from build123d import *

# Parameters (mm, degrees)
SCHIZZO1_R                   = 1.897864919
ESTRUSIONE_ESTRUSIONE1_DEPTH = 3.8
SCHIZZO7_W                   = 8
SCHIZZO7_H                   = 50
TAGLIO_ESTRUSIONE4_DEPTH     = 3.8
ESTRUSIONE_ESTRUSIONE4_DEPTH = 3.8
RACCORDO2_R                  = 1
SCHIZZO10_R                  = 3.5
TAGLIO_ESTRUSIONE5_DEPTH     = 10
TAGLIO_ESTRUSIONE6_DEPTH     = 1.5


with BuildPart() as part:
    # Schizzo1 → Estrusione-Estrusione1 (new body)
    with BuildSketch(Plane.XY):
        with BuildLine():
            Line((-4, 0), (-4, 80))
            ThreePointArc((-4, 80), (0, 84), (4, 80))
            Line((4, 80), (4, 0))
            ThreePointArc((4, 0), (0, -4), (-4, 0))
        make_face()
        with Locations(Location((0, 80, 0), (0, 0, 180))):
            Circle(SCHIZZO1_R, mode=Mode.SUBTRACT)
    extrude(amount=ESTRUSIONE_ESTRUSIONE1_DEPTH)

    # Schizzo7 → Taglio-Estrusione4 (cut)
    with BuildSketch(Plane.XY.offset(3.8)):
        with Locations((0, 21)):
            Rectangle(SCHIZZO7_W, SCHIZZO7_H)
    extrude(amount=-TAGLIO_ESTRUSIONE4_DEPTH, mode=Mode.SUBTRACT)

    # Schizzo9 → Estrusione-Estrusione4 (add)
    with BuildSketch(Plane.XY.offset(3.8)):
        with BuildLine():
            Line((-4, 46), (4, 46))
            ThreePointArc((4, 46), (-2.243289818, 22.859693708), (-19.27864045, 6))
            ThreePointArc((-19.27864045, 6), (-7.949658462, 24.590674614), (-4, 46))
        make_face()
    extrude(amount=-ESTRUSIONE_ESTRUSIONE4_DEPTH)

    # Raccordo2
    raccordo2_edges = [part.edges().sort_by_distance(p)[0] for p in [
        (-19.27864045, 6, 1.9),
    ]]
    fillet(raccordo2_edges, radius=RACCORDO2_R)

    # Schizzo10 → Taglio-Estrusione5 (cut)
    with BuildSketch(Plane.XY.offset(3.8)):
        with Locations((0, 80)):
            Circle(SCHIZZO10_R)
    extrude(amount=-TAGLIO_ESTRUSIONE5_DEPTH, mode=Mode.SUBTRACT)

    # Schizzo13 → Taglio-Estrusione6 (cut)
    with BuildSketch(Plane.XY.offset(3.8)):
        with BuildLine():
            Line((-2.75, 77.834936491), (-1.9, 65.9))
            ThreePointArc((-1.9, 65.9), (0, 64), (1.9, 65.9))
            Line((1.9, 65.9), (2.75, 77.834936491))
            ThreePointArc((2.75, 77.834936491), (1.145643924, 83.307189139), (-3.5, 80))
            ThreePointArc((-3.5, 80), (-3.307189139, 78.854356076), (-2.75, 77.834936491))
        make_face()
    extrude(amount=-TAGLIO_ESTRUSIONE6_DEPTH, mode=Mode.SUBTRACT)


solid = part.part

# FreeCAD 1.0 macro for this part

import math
import FreeCAD as App
import Part
import Sketcher


def edges_at(feature, points):
    """Names of the edges that pass closest to the given points."""
    edges = feature.Shape.Edges
    near = lambda p: min(range(len(edges)), key=lambda i: edges[i].distToShape(Part.Vertex(*p))[0])
    return sorted({f"Edge{near(p) + 1}" for p in points})


def add_polygon(sketch, points):
    """Adds a closed chain of lines whose ends are joined by coincident constraints."""
    first, n = sketch.GeometryCount, len(points)
    for a, b in zip(points, points[1:] + points[:1]):
        sketch.addGeometry(Part.LineSegment(App.Vector(*a, 0), App.Vector(*b, 0)), False)
    for i in range(n):
        sketch.addConstraint(Sketcher.Constraint("Coincident", first + i, 2, first + (i + 1) % n, 1))

doc = App.newDocument("Part")
params = doc.addObject("Spreadsheet::Sheet", "Params")
for row, (alias, value) in enumerate([
    ("sketch1_radius", "4 mm"),
    ("sketch1_height", "80 mm"),
    ("pad1_length", "3.8 mm"),
    ("sketch2_width", "8 mm"),
    ("sketch2_height", "50 mm"),
    ("pocket1_length", "3.8 mm"),
    ("sketch3_radius", "60 mm"),
    ("sketch3_width", "8 mm"),
    ("pad2_length", "3.8 mm"),
    ("fillet_radius", "1 mm"),
    ("sketch4_diameter", "7 mm"),
    ("pocket2_length", "10 mm"),
    ("sketch5_radius", "1.9 mm"),
    ("sketch5_radius2", "3.5 mm"),
    ("pocket3_length", "1.5 mm"),
], start=1):
    params.set(f"A{row}", alias)
    params.set(f"B{row}", "=" + value)
    params.setAlias(f"B{row}", alias)

body = doc.addObject("PartDesign::Body", "Body")

# Sketch on XY plane
sketch1 = body.newObject("Sketcher::SketchObject", "Sketch")
sketch1.AttachmentSupport = (doc.getObject("XY_Plane"), [""])
sketch1.MapMode = "FlatFace"
sketch1.addGeometry(Part.LineSegment(App.Vector(-4, 80, 0), App.Vector(-4, 0, 0)), False)
sketch1.addGeometry(Part.ArcOfCircle(Part.Circle(App.Vector(0, 0, 0), App.Vector(0, 0, 1), 4), math.radians(180), math.radians(360)), False)
sketch1.addGeometry(Part.LineSegment(App.Vector(4, 0, 0), App.Vector(4, 80, 0)), False)
sketch1.addGeometry(Part.ArcOfCircle(Part.Circle(App.Vector(0, 80, 0), App.Vector(0, 0, 1), 4), math.radians(0), math.radians(180)), False)
sketch1.addGeometry(Part.Circle(App.Vector(0, 80, 0), App.Vector(0, 0, 1), 1.9), False)
sketch1.addConstraint(Sketcher.Constraint("Tangent", 0, 2, 1, 1))
sketch1.addConstraint(Sketcher.Constraint("Tangent", 1, 2, 2, 1))
sketch1.addConstraint(Sketcher.Constraint("Tangent", 2, 2, 3, 1))
sketch1.addConstraint(Sketcher.Constraint("Tangent", 3, 2, 0, 1))
sketch1.addConstraint(Sketcher.Constraint("Vertical", 0))
sketch1.addConstraint(Sketcher.Constraint("Vertical", 2))
sketch1.addConstraint(Sketcher.Constraint("Coincident", 1, 3, -1, 1))
sketch1.addConstraint(Sketcher.Constraint("Coincident", 4, 3, 3, 3))
sketch1.addConstraint(Sketcher.Constraint("Radius", 1, 4.0))
sketch1.addConstraint(Sketcher.Constraint("DistanceY", 0, 2, 0, 1, 80.0))
sketch1.addConstraint(Sketcher.Constraint("Diameter", 4, 3.79573))
sketch1.setExpression("Constraints[8]", "Params.sketch1_radius")
sketch1.setExpression("Constraints[9]", "Params.sketch1_height")
pad1 = body.newObject("PartDesign::Pad", "Pad")
pad1.Profile = sketch1
pad1.setExpression("Length", "Params.pad1_length")

# Sketch on XY plane
sketch2 = body.newObject("Sketcher::SketchObject", "Sketch001")
sketch2.AttachmentSupport = (doc.getObject("XY_Plane"), [""])
sketch2.MapMode = "FlatFace"
sketch2.AttachmentOffset = App.Placement(App.Vector(0, 0, 3.8), App.Rotation())
add_polygon(sketch2, [(-4, 46), (-4, -4), (4, -4), (4, 46)])  # lines 0-3
sketch2.addConstraint(Sketcher.Constraint("Vertical", 0))
sketch2.addConstraint(Sketcher.Constraint("Horizontal", 1))
sketch2.addConstraint(Sketcher.Constraint("Vertical", 2))
sketch2.addConstraint(Sketcher.Constraint("Horizontal", 3))
sketch2.addConstraint(Sketcher.Constraint("DistanceX", 1, 1, 1, 2, 8.0))
sketch2.addConstraint(Sketcher.Constraint("DistanceY", 0, 2, 0, 1, 50.0))
sketch2.addConstraint(Sketcher.Constraint("DistanceX", 0, 2, -1, 1, 4.0))
sketch2.addConstraint(Sketcher.Constraint("DistanceY", 0, 2, -1, 1, 4.0))
sketch2.setExpression("Constraints[8]", "Params.sketch2_width")
sketch2.setExpression("Constraints[9]", "Params.sketch2_height")
pocket1 = body.newObject("PartDesign::Pocket", "Pocket")
pocket1.Profile = sketch2
pocket1.setExpression("Length", "Params.pocket1_length")

# Sketch on XY plane
sketch3 = body.newObject("Sketcher::SketchObject", "Sketch002")
sketch3.AttachmentSupport = (doc.getObject("XY_Plane"), [""])
sketch3.MapMode = "FlatFace"
sketch3.AttachmentOffset = App.Placement(App.Vector(0, 0, 3.8), App.Rotation())
sketch3.addGeometry(Part.LineSegment(App.Vector(4, 46, 0), App.Vector(-4, 46, 0)), False)
sketch3.addGeometry(Part.ArcOfCircle(Part.Circle(App.Vector(-64, 46, 0), App.Vector(0, 0, 1), 60), math.radians(-42), math.radians(0)), False)
sketch3.addGeometry(Part.ArcOfCircle(Part.Circle(App.Vector(-42, 46, 0), App.Vector(0, 0, 1), 46), math.radians(-60), math.radians(0)), False)
sketch3.addConstraint(Sketcher.Constraint("Coincident", 0, 2, 1, 2))
sketch3.addConstraint(Sketcher.Constraint("Coincident", 1, 1, 2, 1))
sketch3.addConstraint(Sketcher.Constraint("Coincident", 2, 2, 0, 1))
sketch3.addConstraint(Sketcher.Constraint("Horizontal", 0))
sketch3.addConstraint(Sketcher.Constraint("Horizontal", 1, 3, 2, 3))
sketch3.addConstraint(Sketcher.Constraint("Horizontal", 2, 3, 0, 2))
sketch3.addConstraint(Sketcher.Constraint("Radius", 1, 60.0))
sketch3.addConstraint(Sketcher.Constraint("DistanceX", 0, 2, 0, 1, 8.0))
sketch3.addConstraint(Sketcher.Constraint("DistanceX", 1, 3, -1, 1, 64.0))
sketch3.addConstraint(Sketcher.Constraint("DistanceY", -1, 1, 1, 3, 46.0))
sketch3.addConstraint(Sketcher.Constraint("DistanceY", -1, 1, 1, 1, 6.0))
sketch3.setExpression("Constraints[6]", "Params.sketch3_radius")
sketch3.setExpression("Constraints[7]", "Params.sketch3_width")
pad2 = body.newObject("PartDesign::Pad", "Pad001")
pad2.Profile = sketch3
pad2.setExpression("Length", "Params.pad2_length")
pad2.Reversed = True
doc.recompute()

fillet = body.newObject("PartDesign::Fillet", "Fillet")
fillet.Base = (pad2, edges_at(pad2, [(-19.279, 6, 1.9)]))
fillet.setExpression("Radius", "Params.fillet_radius")

# Sketch on XY plane
sketch4 = body.newObject("Sketcher::SketchObject", "Sketch003")
sketch4.AttachmentSupport = (doc.getObject("XY_Plane"), [""])
sketch4.MapMode = "FlatFace"
sketch4.AttachmentOffset = App.Placement(App.Vector(0, 0, 3.8), App.Rotation())
sketch4.addGeometry(Part.Circle(App.Vector(0, 80, 0), App.Vector(0, 0, 1), 3.5), False)
sketch4.addConstraint(Sketcher.Constraint("PointOnObject", 0, 3, -2))
sketch4.addConstraint(Sketcher.Constraint("Diameter", 0, 7.0))
sketch4.addConstraint(Sketcher.Constraint("DistanceY", -1, 1, 0, 3, 80.0))
sketch4.setExpression("Constraints[1]", "Params.sketch4_diameter")
pocket2 = body.newObject("PartDesign::Pocket", "Pocket001")
pocket2.Profile = sketch4
pocket2.setExpression("Length", "Params.pocket2_length")

# Sketch on XY plane
sketch5 = body.newObject("Sketcher::SketchObject", "Sketch004")
sketch5.AttachmentSupport = (doc.getObject("XY_Plane"), [""])
sketch5.MapMode = "FlatFace"
sketch5.AttachmentOffset = App.Placement(App.Vector(0, 0, 3.8), App.Rotation())
sketch5.addGeometry(Part.LineSegment(App.Vector(-2.8, 77.8, 0), App.Vector(-1.9, 65.9, 0)), False)
sketch5.addGeometry(Part.ArcOfCircle(Part.Circle(App.Vector(0, 65.9, 0), App.Vector(0, 0, 1), 1.9), math.radians(180), math.radians(360)), False)
sketch5.addGeometry(Part.LineSegment(App.Vector(1.9, 65.9, 0), App.Vector(2.8, 77.8, 0)), False)
sketch5.addGeometry(Part.ArcOfCircle(Part.Circle(App.Vector(0, 80, 0), App.Vector(0, 0, 1), 3.5), math.radians(-38), math.radians(180)), False)
sketch5.addGeometry(Part.ArcOfCircle(Part.Circle(App.Vector(0, 80, 0), App.Vector(0, 0, 1), 3.5), math.radians(180), math.radians(218)), False)
sketch5.addConstraint(Sketcher.Constraint("Coincident", 0, 2, 1, 1))
sketch5.addConstraint(Sketcher.Constraint("Coincident", 1, 2, 2, 1))
sketch5.addConstraint(Sketcher.Constraint("Coincident", 2, 2, 3, 1))
sketch5.addConstraint(Sketcher.Constraint("Tangent", 3, 2, 4, 1))
sketch5.addConstraint(Sketcher.Constraint("Coincident", 4, 2, 0, 1))
sketch5.addConstraint(Sketcher.Constraint("Equal", 3, 4))
sketch5.addConstraint(Sketcher.Constraint("Symmetric", 0, 2, 1, 2, -2))
sketch5.addConstraint(Sketcher.Constraint("Symmetric", 2, 2, 4, 2, -2))
sketch5.addConstraint(Sketcher.Constraint("Horizontal", 1, 3, 0, 2))
sketch5.addConstraint(Sketcher.Constraint("Horizontal", 4, 3, 3, 2))
sketch5.addConstraint(Sketcher.Constraint("Radius", 1, 1.9))
sketch5.addConstraint(Sketcher.Constraint("Radius", 3, 3.5))
sketch5.addConstraint(Sketcher.Constraint("DistanceY", -1, 1, 3, 3, 80.0))
sketch5.addConstraint(Sketcher.Constraint("DistanceY", -1, 1, 1, 3, 65.9))
sketch5.addConstraint(Sketcher.Constraint("DistanceX", 4, 2, 2, 2, 5.5))
sketch5.setExpression("Constraints[10]", "Params.sketch5_radius")
sketch5.setExpression("Constraints[11]", "Params.sketch5_radius2")
pocket3 = body.newObject("PartDesign::Pocket", "Pocket002")
pocket3.Profile = sketch5
pocket3.setExpression("Length", "Params.pocket3_length")

doc.recompute()
